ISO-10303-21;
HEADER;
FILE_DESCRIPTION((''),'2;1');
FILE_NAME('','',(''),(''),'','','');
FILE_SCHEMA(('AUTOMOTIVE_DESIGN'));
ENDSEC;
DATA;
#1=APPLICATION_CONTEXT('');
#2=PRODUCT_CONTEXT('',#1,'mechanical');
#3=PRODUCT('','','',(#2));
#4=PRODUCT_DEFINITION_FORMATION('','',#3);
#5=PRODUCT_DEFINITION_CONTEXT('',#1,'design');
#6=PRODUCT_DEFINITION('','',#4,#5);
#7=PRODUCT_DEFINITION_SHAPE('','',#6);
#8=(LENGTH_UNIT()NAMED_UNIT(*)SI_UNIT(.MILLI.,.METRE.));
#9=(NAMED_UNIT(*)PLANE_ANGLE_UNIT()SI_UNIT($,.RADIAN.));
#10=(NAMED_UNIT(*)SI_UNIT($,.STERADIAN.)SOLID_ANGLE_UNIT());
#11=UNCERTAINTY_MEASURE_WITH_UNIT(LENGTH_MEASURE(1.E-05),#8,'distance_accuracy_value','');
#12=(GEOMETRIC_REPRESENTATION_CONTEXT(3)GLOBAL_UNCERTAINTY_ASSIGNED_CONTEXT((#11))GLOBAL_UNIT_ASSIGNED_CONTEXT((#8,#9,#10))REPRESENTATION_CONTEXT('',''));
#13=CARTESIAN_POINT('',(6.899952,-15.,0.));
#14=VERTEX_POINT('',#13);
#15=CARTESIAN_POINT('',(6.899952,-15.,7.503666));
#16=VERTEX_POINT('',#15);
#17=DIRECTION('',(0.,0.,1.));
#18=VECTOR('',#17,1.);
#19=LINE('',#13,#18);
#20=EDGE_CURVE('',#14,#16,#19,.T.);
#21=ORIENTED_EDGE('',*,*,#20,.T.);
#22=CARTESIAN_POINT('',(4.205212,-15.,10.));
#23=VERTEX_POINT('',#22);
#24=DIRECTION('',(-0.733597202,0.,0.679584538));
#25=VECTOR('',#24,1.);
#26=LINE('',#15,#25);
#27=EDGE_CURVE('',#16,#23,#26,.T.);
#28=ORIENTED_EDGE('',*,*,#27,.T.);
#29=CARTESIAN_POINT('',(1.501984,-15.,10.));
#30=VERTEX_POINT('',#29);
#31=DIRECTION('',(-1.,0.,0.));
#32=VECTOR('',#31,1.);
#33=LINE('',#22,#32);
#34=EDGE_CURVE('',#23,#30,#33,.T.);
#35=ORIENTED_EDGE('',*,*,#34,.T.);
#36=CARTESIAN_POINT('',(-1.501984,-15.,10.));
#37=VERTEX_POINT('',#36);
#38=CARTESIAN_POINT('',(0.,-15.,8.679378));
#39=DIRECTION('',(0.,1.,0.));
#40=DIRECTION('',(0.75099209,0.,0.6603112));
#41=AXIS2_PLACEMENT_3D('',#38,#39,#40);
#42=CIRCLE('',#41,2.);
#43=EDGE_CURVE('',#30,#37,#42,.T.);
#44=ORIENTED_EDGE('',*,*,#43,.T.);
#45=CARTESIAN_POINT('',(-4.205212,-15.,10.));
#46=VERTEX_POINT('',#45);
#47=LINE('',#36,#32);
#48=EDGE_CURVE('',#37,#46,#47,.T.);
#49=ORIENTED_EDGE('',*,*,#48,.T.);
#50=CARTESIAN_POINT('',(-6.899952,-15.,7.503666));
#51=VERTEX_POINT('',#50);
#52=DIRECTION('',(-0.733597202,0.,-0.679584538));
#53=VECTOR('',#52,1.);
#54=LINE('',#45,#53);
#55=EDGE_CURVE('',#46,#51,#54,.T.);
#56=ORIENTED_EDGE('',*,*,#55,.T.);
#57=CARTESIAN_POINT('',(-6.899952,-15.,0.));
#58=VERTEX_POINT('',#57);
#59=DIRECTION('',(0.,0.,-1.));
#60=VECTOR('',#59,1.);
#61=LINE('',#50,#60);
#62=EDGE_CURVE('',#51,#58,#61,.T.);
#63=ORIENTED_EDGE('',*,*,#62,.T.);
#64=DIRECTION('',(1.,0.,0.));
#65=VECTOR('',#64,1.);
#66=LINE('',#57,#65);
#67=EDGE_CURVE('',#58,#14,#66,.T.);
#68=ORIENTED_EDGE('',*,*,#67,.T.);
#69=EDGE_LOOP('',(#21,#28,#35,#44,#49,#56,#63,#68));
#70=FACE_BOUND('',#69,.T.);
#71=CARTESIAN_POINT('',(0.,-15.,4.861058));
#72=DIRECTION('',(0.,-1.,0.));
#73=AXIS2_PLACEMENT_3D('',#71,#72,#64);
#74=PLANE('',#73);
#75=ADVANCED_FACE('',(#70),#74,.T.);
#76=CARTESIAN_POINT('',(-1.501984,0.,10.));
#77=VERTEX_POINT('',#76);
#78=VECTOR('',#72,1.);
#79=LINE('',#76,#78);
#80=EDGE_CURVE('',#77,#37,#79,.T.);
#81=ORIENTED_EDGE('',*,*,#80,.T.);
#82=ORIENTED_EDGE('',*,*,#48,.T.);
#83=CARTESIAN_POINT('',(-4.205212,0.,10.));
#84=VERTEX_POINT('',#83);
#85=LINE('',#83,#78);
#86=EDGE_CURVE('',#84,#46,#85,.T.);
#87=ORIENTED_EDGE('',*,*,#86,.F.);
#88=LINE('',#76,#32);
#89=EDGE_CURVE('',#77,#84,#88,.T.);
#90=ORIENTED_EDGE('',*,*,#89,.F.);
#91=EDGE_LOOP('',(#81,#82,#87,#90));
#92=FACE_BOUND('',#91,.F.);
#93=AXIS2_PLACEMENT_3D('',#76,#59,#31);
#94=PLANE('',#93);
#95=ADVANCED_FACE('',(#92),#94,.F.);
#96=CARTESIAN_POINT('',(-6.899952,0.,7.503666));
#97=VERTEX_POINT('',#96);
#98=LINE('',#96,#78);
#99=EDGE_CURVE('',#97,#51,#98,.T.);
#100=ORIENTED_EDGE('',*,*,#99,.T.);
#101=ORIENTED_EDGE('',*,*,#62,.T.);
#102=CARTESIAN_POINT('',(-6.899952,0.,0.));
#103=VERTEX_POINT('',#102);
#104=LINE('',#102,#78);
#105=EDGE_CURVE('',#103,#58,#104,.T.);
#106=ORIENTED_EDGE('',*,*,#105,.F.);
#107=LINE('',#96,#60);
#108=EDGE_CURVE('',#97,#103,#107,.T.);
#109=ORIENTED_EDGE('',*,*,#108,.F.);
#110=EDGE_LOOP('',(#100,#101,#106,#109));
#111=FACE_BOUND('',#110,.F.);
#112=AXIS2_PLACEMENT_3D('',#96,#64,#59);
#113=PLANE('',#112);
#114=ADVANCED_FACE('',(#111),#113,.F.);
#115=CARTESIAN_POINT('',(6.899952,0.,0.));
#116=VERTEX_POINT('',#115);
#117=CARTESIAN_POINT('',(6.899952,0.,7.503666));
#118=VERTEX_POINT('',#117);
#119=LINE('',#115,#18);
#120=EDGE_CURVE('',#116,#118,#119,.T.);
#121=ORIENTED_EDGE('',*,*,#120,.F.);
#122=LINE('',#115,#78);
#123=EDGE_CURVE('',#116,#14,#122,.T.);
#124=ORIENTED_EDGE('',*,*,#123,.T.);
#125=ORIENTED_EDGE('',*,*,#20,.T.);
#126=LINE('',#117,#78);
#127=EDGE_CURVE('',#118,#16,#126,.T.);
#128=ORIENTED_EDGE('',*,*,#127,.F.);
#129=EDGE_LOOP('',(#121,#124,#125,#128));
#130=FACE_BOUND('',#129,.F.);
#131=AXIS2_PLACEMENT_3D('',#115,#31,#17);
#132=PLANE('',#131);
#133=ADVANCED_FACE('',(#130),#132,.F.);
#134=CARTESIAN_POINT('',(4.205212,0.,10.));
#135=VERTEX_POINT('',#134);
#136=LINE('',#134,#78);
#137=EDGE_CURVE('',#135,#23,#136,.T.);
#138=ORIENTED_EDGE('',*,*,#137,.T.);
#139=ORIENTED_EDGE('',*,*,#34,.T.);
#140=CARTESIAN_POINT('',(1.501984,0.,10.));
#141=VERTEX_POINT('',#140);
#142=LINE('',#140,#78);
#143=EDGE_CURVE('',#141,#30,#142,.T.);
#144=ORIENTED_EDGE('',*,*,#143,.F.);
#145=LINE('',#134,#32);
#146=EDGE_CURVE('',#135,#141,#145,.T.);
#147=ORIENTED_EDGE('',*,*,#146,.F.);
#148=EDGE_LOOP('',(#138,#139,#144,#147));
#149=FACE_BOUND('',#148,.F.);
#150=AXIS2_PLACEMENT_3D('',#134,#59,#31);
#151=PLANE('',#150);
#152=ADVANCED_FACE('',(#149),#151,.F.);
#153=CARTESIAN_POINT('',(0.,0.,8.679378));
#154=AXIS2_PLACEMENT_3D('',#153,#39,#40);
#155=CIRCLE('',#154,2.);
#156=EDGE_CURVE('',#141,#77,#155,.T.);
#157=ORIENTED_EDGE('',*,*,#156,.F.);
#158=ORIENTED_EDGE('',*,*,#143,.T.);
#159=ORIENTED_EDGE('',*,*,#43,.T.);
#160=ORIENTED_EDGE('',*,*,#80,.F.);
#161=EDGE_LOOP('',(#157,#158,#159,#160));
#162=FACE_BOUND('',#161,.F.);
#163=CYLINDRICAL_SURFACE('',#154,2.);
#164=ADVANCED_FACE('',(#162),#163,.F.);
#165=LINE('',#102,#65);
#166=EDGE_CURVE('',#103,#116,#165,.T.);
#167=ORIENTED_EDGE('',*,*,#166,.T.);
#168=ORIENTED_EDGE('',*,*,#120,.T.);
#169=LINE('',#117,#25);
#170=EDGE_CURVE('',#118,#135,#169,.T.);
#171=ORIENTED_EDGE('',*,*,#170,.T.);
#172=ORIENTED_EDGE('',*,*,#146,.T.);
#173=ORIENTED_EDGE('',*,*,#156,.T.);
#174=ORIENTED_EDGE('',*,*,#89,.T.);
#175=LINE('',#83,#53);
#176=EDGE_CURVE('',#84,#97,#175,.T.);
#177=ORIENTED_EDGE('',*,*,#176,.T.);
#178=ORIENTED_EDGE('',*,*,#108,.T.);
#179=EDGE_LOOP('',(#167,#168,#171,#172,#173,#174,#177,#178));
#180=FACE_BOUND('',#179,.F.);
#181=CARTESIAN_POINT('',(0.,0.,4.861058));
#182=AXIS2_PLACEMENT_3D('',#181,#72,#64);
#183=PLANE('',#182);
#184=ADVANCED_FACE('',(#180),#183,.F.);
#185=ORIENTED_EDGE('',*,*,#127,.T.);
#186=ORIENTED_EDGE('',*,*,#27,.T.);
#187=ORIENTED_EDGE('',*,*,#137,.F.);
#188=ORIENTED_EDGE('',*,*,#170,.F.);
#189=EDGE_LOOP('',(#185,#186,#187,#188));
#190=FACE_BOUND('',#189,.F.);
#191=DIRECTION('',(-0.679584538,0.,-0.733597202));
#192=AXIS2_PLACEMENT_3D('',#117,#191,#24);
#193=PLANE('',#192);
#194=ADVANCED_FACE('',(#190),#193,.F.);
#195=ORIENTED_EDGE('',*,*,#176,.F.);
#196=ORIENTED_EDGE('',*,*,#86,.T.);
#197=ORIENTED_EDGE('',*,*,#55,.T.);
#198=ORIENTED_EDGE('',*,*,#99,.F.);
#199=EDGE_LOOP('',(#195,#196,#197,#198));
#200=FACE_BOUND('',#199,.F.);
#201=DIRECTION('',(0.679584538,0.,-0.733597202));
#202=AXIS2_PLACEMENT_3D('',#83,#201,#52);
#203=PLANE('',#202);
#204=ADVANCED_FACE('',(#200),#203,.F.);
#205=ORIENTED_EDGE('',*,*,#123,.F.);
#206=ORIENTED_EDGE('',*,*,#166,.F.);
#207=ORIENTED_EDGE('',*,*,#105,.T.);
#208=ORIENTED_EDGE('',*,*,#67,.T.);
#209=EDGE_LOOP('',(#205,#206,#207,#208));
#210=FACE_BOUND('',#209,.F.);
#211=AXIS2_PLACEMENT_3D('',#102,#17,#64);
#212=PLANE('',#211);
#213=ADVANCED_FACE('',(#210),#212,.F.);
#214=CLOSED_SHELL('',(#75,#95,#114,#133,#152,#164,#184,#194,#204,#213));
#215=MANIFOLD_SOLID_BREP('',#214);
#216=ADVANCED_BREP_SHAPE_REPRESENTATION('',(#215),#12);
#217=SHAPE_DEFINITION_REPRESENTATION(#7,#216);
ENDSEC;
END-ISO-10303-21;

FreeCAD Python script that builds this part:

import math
import FreeCAD as App
import Part
import Sketcher
from FreeCAD import Vector
Q = App.Units.Quantity

doc = App.newDocument("Part")
body = doc.addObject("PartDesign::Body", "Body")

# Sketch on XZ plane
sketch1 = body.newObject("Sketcher::SketchObject", "Sketch")
sketch1.AttachmentSupport = (doc.getObject("XZ_Plane"), [""])
sketch1.MapMode = "FlatFace"
sketch1.addGeometry(Part.LineSegment(Vector(-1.5, 10, 0), Vector(-4.2, 10, 0)), False)
sketch1.addGeometry(Part.LineSegment(Vector(-4.2, 10, 0), Vector(-6.9, 7.5, 0)), False)
sketch1.addGeometry(Part.LineSegment(Vector(-6.9, 7.5, 0), Vector(-6.9, 0, 0)), False)
sketch1.addGeometry(Part.LineSegment(Vector(-6.9, 0, 0), Vector(6.9, 0, 0)), False)
sketch1.addGeometry(Part.LineSegment(Vector(6.9, 0, 0), Vector(6.9, 7.5, 0)), False)
sketch1.addGeometry(Part.LineSegment(Vector(6.9, 7.5, 0), Vector(4.2, 10, 0)), False)
sketch1.addGeometry(Part.LineSegment(Vector(4.2, 10, 0), Vector(1.5, 10, 0)), False)
sketch1.addGeometry(Part.ArcOfCircle(Part.Circle(Vector(0, 8.7, 0), Vector(0, 0, 1), 2), math.radians(139), math.radians(401)), False)
sketch1.addConstraint(Sketcher.Constraint("Coincident", 0, 2, 1, 1))
sketch1.addConstraint(Sketcher.Constraint("Coincident", 1, 2, 2, 1))
sketch1.addConstraint(Sketcher.Constraint("Coincident", 2, 2, 3, 1))
sketch1.addConstraint(Sketcher.Constraint("Coincident", 3, 2, 4, 1))
sketch1.addConstraint(Sketcher.Constraint("Coincident", 4, 2, 5, 1))
sketch1.addConstraint(Sketcher.Constraint("Coincident", 5, 2, 6, 1))
sketch1.addConstraint(Sketcher.Constraint("Coincident", 6, 2, 7, 2))
sketch1.addConstraint(Sketcher.Constraint("Coincident", 7, 1, 0, 1))
sketch1.addConstraint(Sketcher.Constraint("Horizontal", 0))
sketch1.addConstraint(Sketcher.Constraint("Vertical", 2))
sketch1.addConstraint(Sketcher.Constraint("Horizontal", 3))
sketch1.addConstraint(Sketcher.Constraint("Vertical", 4))
sketch1.addConstraint(Sketcher.Constraint("Horizontal", 6))
sketch1.addConstraint(Sketcher.Constraint("Symmetric", 2, 2, 3, 2, -1, 1))
sketch1.addConstraint(Sketcher.Constraint("Symmetric", 0, 2, 5, 2, -2))
sketch1.addConstraint(Sketcher.Constraint("PointOnObject", 7, 3, -2))
sketch1.addConstraint(Sketcher.Constraint("Horizontal", 1, 2, 4, 2))
sketch1.addConstraint(Sketcher.Constraint("Radius", 7, Q("2 mm")))
sketch1.addConstraint(Sketcher.Constraint("DistanceY", -1, 1, 0, 2, Q("10 mm")))
sketch1.addConstraint(Sketcher.Constraint("DistanceX", 0, 2, 0, 1, Q("2.703228 mm")))
sketch1.addConstraint(Sketcher.Constraint("DistanceX", 3, 1, 3, 2, Q("13.799904 mm")))
sketch1.addConstraint(Sketcher.Constraint("DistanceY", 2, 2, 2, 1, Q("7.503666 mm")))
sketch1.addConstraint(Sketcher.Constraint("DistanceX", 1, 2, 0, 2, Q("2.69474 mm")))
pad1 = body.newObject("PartDesign::Pad", "Pad")
pad1.Profile = sketch1
pad1.Length = 15

doc.recompute()
